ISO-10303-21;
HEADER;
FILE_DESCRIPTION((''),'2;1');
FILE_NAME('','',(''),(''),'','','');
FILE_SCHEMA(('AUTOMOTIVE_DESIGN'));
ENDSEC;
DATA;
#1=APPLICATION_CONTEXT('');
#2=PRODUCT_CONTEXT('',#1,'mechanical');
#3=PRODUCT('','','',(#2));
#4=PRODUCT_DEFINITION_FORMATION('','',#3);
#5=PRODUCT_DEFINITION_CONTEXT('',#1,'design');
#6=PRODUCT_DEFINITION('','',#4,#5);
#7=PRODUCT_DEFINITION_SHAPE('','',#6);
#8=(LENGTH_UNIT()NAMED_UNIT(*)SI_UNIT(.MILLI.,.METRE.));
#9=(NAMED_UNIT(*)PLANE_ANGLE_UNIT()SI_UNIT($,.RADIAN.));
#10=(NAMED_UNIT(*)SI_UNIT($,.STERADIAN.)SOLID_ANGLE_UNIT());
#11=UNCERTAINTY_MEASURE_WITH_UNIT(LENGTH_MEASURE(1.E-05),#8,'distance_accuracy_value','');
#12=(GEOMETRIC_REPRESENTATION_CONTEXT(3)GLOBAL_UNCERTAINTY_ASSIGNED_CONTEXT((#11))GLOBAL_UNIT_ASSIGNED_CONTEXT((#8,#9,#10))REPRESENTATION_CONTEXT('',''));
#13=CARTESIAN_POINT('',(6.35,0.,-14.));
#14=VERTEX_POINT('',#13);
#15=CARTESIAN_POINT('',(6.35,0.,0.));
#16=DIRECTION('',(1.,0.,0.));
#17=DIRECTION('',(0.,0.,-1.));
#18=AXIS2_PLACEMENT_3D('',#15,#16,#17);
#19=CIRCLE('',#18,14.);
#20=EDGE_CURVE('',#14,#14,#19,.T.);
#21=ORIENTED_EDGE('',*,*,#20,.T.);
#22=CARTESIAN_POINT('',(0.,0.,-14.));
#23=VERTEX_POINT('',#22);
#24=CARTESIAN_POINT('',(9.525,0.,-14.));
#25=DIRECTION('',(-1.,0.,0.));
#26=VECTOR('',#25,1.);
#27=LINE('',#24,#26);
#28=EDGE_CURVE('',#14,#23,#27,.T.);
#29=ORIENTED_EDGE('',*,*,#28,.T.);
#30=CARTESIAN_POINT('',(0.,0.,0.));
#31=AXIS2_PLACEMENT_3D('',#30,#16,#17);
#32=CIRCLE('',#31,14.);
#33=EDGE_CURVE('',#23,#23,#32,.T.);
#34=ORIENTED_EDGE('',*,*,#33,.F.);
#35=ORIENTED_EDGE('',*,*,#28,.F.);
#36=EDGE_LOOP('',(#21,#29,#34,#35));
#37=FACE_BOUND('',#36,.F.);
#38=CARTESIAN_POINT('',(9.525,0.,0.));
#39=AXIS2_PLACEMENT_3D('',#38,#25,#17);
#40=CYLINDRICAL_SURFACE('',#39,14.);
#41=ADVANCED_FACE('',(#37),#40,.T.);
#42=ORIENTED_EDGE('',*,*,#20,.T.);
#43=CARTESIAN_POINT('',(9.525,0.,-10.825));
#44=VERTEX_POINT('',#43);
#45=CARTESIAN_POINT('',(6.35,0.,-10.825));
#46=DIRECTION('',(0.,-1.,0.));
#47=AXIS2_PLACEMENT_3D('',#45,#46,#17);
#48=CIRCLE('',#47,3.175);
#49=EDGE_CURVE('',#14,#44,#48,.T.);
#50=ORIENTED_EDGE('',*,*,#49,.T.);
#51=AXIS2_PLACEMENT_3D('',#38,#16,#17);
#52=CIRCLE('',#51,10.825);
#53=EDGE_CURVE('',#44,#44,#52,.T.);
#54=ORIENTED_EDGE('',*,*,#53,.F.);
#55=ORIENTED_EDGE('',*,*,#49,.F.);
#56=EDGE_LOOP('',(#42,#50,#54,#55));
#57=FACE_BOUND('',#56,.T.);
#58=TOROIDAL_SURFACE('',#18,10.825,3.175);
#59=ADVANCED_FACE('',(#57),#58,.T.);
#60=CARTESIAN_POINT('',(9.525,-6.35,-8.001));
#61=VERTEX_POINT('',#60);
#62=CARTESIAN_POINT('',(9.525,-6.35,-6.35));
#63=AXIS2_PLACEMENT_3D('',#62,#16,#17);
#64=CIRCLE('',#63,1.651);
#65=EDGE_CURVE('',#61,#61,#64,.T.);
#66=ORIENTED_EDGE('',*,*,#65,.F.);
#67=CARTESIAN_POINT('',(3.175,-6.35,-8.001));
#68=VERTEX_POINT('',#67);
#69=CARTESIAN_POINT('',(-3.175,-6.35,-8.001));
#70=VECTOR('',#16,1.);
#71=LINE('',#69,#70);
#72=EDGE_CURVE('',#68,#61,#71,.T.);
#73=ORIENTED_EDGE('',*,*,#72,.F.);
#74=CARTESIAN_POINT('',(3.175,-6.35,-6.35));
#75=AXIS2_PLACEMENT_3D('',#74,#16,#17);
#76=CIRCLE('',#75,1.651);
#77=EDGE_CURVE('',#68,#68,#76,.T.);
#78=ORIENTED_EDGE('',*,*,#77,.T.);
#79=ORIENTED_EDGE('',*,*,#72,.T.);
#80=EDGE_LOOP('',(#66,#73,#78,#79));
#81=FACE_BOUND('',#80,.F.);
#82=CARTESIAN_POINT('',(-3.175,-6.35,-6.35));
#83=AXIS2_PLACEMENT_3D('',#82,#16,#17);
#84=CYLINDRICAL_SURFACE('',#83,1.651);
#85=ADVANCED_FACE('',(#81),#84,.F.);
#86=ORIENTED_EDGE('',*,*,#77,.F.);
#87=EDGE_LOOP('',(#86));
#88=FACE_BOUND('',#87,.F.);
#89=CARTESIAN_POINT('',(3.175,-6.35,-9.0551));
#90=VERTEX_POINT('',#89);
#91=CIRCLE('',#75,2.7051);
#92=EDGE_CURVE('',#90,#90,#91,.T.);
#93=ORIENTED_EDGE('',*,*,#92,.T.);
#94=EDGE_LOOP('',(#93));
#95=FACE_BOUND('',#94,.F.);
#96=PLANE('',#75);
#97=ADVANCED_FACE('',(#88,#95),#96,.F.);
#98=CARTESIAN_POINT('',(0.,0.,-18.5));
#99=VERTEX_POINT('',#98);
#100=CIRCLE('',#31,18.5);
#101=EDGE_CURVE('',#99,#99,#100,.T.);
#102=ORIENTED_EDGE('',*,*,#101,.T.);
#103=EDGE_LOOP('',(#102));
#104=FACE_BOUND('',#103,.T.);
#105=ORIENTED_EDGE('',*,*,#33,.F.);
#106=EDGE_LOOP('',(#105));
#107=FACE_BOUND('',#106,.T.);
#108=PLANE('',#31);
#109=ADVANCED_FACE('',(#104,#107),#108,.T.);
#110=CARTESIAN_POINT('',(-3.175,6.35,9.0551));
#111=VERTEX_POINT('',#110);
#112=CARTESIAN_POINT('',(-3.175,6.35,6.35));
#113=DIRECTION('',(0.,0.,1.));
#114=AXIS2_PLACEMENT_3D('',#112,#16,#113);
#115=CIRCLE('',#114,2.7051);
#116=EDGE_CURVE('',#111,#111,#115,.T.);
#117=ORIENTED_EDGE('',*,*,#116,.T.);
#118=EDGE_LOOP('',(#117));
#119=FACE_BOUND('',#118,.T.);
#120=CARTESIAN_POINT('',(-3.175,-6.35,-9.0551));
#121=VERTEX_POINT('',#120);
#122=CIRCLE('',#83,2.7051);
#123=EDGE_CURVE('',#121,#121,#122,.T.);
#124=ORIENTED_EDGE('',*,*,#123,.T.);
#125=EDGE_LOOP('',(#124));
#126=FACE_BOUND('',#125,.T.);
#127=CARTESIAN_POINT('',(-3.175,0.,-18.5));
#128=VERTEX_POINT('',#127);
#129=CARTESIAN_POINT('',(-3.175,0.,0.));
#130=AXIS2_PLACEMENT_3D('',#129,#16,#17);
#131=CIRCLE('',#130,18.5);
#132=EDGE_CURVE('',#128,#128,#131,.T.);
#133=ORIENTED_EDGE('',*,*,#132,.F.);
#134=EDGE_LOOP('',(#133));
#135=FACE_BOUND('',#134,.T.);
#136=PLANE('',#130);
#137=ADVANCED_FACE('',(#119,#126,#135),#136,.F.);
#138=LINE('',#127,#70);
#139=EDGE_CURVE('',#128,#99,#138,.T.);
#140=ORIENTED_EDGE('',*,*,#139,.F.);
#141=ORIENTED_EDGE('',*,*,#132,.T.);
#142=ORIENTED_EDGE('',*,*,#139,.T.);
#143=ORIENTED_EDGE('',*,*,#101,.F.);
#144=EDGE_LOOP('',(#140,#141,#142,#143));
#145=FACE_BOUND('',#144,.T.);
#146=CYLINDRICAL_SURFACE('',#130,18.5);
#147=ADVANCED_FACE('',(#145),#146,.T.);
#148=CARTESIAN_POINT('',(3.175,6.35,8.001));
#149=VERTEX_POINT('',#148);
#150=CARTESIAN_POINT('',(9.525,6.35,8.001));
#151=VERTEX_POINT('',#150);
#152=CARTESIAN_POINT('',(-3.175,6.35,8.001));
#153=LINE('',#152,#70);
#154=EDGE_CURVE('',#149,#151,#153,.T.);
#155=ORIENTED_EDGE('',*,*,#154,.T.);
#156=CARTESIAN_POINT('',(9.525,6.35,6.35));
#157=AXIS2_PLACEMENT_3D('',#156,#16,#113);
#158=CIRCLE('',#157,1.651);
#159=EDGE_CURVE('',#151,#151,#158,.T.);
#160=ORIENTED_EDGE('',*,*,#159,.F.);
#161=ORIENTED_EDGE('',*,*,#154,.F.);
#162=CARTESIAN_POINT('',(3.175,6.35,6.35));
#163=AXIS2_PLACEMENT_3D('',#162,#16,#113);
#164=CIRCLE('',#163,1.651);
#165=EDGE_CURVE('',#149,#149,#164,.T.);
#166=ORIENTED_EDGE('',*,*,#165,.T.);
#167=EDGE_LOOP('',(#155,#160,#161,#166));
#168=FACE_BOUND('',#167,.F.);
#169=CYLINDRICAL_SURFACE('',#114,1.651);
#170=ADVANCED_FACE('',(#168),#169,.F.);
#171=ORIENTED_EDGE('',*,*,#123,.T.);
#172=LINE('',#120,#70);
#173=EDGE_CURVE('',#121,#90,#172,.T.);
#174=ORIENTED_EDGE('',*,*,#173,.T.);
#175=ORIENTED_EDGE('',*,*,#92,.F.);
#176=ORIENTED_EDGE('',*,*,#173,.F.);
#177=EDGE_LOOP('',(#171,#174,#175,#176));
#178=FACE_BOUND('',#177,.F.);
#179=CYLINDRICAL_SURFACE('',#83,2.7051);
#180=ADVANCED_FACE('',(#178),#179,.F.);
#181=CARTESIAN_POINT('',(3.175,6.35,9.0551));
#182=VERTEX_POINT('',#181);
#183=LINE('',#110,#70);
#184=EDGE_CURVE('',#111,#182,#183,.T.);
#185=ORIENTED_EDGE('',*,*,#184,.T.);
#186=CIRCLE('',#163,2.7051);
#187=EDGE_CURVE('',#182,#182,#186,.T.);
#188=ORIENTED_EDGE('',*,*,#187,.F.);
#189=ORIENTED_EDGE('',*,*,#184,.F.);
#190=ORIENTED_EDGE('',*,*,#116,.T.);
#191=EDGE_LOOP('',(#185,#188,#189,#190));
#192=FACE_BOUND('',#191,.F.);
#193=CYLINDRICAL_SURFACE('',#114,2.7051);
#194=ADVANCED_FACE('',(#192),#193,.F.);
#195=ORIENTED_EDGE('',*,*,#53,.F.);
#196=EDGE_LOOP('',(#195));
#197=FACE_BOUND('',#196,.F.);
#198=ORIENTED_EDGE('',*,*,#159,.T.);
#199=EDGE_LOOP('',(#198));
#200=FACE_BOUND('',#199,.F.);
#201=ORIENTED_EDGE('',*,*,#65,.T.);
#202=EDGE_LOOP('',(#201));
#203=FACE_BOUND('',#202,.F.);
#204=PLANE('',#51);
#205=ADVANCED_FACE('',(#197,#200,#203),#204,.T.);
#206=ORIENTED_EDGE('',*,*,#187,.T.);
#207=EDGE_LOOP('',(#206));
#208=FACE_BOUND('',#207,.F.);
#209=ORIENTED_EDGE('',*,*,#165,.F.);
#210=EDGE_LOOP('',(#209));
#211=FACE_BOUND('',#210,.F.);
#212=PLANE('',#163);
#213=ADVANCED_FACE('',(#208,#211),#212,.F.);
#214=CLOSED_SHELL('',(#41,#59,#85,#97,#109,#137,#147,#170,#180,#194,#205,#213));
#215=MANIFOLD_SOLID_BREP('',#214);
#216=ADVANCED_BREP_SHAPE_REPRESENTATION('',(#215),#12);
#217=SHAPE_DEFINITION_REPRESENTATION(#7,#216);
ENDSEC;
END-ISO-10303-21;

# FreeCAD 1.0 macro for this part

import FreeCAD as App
import Part
import Sketcher

V = App.Vector
Q = App.Units.Quantity


def edges_at(feature, points):
    """Names of the edges that pass closest to the given points."""
    edges = feature.Shape.Edges
    near = lambda p: min(range(len(edges)), key=lambda i: edges[i].distToShape(Part.Vertex(*p))[0])
    return sorted({f"Edge{near(p) + 1}" for p in points})

doc = App.newDocument("Part")
params = doc.addObject("Spreadsheet::Sheet", "Params")
for row, (alias, value) in enumerate([
    ("sketch1_width", "0.375 in"),
    ("sketch1_width2", "0.125 in"),
    ("revolution_angle", "360 deg"),
    ("sketch2_diameter", "0.213 in"),
    ("hole_diameter", "0.213 in"),
    ("hole_depth", "0.25 in"),
    ("sketch3_diameter", "0.13 in"),
    ("hole2_diameter", "0.13 in"),
    ("hole2_depth", "0.5 in"),
    ("fillet_radius", "0.125 in"),
], start=1):
    params.set(f"A{row}", alias)
    params.set(f"B{row}", "=" + value)
    params.setAlias(f"B{row}", alias)

body = doc.addObject("PartDesign::Body", "Body")

sketch1 = body.newObject("Sketcher::SketchObject", "Sketch")
sketch1.AttachmentSupport = (doc.getObject("XZ_Plane"), [""])
sketch1.MapMode = "FlatFace"
sketch1.addGeometry(Part.LineSegment(V(-3.2, 0, 0), V(9.5, 0, 0)), False)
sketch1.addGeometry(Part.LineSegment(V(9.5, 0, 0), V(9.5, -14, 0)), False)
sketch1.addGeometry(Part.LineSegment(V(9.5, -14, 0), V(0, -14, 0)), False)
sketch1.addGeometry(Part.LineSegment(V(0, -14, 0), V(0, -18.5, 0)), False)
sketch1.addGeometry(Part.LineSegment(V(0, -18.5, 0), V(-3.2, -18.5, 0)), False)
sketch1.addGeometry(Part.LineSegment(V(-3.2, -18.5, 0), V(-3.2, 0, 0)), False)
sketch1.addConstraint(Sketcher.Constraint("Coincident", 0, 2, 1, 1))
sketch1.addConstraint(Sketcher.Constraint("Coincident", 1, 2, 2, 1))
sketch1.addConstraint(Sketcher.Constraint("Coincident", 2, 2, 3, 1))
sketch1.addConstraint(Sketcher.Constraint("Coincident", 3, 2, 4, 1))
sketch1.addConstraint(Sketcher.Constraint("Coincident", 4, 2, 5, 1))
sketch1.addConstraint(Sketcher.Constraint("Coincident", 5, 2, 0, 1))
sketch1.addConstraint(Sketcher.Constraint("Horizontal", 0))
sketch1.addConstraint(Sketcher.Constraint("Vertical", 1))
sketch1.addConstraint(Sketcher.Constraint("Horizontal", 2))
sketch1.addConstraint(Sketcher.Constraint("Vertical", 3))
sketch1.addConstraint(Sketcher.Constraint("Horizontal", 4))
sketch1.addConstraint(Sketcher.Constraint("Vertical", 5))
sketch1.addConstraint(Sketcher.Constraint("PointOnObject", 0, 2, -1))
sketch1.addConstraint(Sketcher.Constraint("PointOnObject", 2, 2, -2))
sketch1.addConstraint(Sketcher.Constraint("DistanceX", 2, 2, 2, 1, Q("0.375 in")))
sketch1.addConstraint(Sketcher.Constraint("DistanceX", 4, 2, 4, 1, Q("0.125 in")))
sketch1.addConstraint(Sketcher.Constraint("DistanceY", 1, 2, 1, 1, 14.0))
sketch1.addConstraint(Sketcher.Constraint("DistanceY", 5, 1, 5, 2, 18.5))
sketch1.setExpression("Constraints[14]", "Params.sketch1_width")
sketch1.setExpression("Constraints[15]", "Params.sketch1_width2")
revolution = body.newObject("PartDesign::Revolution", "Revolution")
revolution.Profile = sketch1
revolution.ReferenceAxis = (sketch1, ["H_Axis"])
revolution.setExpression("Angle", "Params.revolution_angle")

sketch2 = body.newObject("Sketcher::SketchObject", "Sketch001")
sketch2.AttachmentSupport = (doc.getObject("YZ_Plane"), [""])
sketch2.MapMode = "FlatFace"
sketch2.AttachmentOffset = App.Placement(V(0, 0, -0.125 * 25.4), App.Rotation())
sketch2.addGeometry(Part.Circle(V(6.3, 6.3, 0), V(0, 0, 1), 2.7), False)
sketch2.addConstraint(Sketcher.Constraint("Diameter", 0, Q("0.213 in")))
sketch2.addConstraint(Sketcher.Constraint("DistanceX", -1, 1, 0, 3, Q("0.25 in")))
sketch2.addConstraint(Sketcher.Constraint("DistanceY", -1, 1, 0, 3, Q("0.25 in")))
sketch2.setExpression("Constraints[0]", "Params.sketch2_diameter")
doc.recompute()
hole = body.newObject("PartDesign::Hole", "Hole")
hole.Profile = sketch2
hole.ThreadType = "None"
hole.setExpression("Diameter", "Params.hole_diameter")
hole.DepthType = "Dimension"
hole.setExpression("Depth", "Params.hole_depth")
hole.DrillPoint = "Flat"
hole.Reversed = True

sketch3 = body.newObject("Sketcher::SketchObject", "Sketch002")
sketch3.AttachmentSupport = (doc.getObject("YZ_Plane"), [""])
sketch3.MapMode = "FlatFace"
sketch3.AttachmentOffset = App.Placement(V(0, 0, -0.125 * 25.4), App.Rotation())
sketch3.addGeometry(Part.Circle(V(6.3, 6.3, 0), V(0, 0, 1), 1.7), False)
sketch3.addConstraint(Sketcher.Constraint("Diameter", 0, Q("0.13 in")))
sketch3.addConstraint(Sketcher.Constraint("DistanceX", -1, 1, 0, 3, Q("0.25 in")))
sketch3.addConstraint(Sketcher.Constraint("DistanceY", -1, 1, 0, 3, Q("0.25 in")))
sketch3.setExpression("Constraints[0]", "Params.sketch3_diameter")
doc.recompute()
hole2 = body.newObject("PartDesign::Hole", "Hole001")
hole2.Profile = sketch3
hole2.ThreadType = "None"
hole2.setExpression("Diameter", "Params.hole2_diameter")
hole2.DepthType = "Dimension"
hole2.setExpression("Depth", "Params.hole2_depth")
hole2.DrillPoint = "Angled"
hole2.DrillPointAngle = 118
hole2.Reversed = True
doc.recompute()

polarpattern = body.newObject("PartDesign::PolarPattern", "PolarPattern")
polarpattern.Originals = [hole, hole2]
polarpattern.Axis = (doc.getObject("X_Axis"), [""])
polarpattern.Angle = 360
polarpattern.Occurrences = 2
body.Tip = polarpattern
doc.recompute()

fillet = body.newObject("PartDesign::Fillet", "Fillet")
fillet.Base = (polarpattern, edges_at(polarpattern, [(9.525, 0, 14)]))
fillet.setExpression("Radius", "Params.fillet_radius")

doc.recompute()
